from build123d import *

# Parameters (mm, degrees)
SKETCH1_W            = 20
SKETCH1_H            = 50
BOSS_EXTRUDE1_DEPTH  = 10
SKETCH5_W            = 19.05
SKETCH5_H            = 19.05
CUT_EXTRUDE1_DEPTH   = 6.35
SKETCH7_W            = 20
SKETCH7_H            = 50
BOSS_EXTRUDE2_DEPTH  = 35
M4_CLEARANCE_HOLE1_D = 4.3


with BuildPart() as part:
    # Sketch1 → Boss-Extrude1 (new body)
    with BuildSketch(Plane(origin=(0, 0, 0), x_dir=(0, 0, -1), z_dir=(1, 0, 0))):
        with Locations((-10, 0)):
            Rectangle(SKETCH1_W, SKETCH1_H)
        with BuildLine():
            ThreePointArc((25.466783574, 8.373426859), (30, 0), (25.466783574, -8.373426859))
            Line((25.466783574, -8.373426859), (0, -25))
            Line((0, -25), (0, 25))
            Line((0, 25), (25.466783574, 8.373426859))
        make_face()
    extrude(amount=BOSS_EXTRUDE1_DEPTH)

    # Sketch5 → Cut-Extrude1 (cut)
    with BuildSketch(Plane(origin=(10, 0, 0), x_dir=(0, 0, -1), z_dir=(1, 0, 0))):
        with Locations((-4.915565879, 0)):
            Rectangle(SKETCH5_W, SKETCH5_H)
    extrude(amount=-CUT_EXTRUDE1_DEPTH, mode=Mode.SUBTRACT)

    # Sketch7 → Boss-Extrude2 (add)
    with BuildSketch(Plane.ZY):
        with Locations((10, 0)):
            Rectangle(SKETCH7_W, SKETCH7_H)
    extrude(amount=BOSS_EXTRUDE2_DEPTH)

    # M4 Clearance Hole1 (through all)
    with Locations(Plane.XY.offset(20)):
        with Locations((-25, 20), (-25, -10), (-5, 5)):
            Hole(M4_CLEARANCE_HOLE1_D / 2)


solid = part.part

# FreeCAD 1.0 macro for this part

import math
import FreeCAD as App
import Part
import Sketcher
from FreeCAD import Vector
Q = App.Units.Quantity

doc = App.newDocument("Part")
params = doc.addObject("Spreadsheet::Sheet", "Params")
for row, (alias, value) in enumerate([
    ("sketch1_radius", "10 mm"),
    ("sketch1_width", "50 mm"),
    ("sketch1_height", "20 mm"),
    ("pad1_length", "10 mm"),
    ("sketch2_width", "19.05 mm"),
    ("pocket1_length", "6.35 mm"),
    ("sketch3_width", "50 mm"),
    ("sketch3_height", "20 mm"),
    ("pad2_length", "35 mm"),
    ("sketch4_diameter", "4.3 mm"),
    ("hole_diameter", "4.3 mm"),
], start=1):
    params.set(f"A{row}", alias)
    params.set(f"B{row}", "=" + value)
    params.setAlias(f"B{row}", alias)

body = doc.addObject("PartDesign::Body", "Body")

sketch1 = body.newObject("Sketcher::SketchObject", "Sketch")
sketch1.AttachmentSupport = (doc.getObject("YZ_Plane"), [""])
sketch1.MapMode = "FlatFace"
sketch1.addGeometry([
    Part.LineSegment(Vector(25, 20, 0), Vector(-25, 20, 0)),
    Part.LineSegment(Vector(-25, 20, 0), Vector(-25, 0, 0)),
    Part.LineSegment(Vector(-25, 0, 0), Vector(-8, -25, 0)),
    Part.ArcOfCircle(Part.Circle(Vector(0, -20, 0), Vector(0, 0, 1), 10), math.radians(-147), math.radians(-33)),
    Part.LineSegment(Vector(8, -25, 0), Vector(25, 0, 0)),
    Part.LineSegment(Vector(25, 0, 0), Vector(25, 20, 0)),
], False)
sketch1.addConstraint([
    Sketcher.Constraint("Coincident", 0, 2, 1, 1),
    Sketcher.Constraint("Coincident", 1, 2, 2, 1),
    Sketcher.Constraint("Tangent", 2, 2, 3, 1),
    Sketcher.Constraint("Tangent", 3, 2, 4, 1),
    Sketcher.Constraint("Coincident", 4, 2, 5, 1),
    Sketcher.Constraint("Coincident", 5, 2, 0, 1),
    Sketcher.Constraint("Horizontal", 0),
    Sketcher.Constraint("Vertical", 1),
    Sketcher.Constraint("Vertical", 5),
    Sketcher.Constraint("Symmetric", 1, 2, 4, 2, -1, 1),
    Sketcher.Constraint("Symmetric", 2, 2, 3, 2, -2),
    Sketcher.Constraint("Radius", 3, Q("10 mm")),
    Sketcher.Constraint("DistanceX", 0, 2, 0, 1, Q("50 mm")),
    Sketcher.Constraint("DistanceY", 1, 2, 1, 1, Q("20 mm")),
    Sketcher.Constraint("DistanceY", 3, 3, -1, 1, Q("20 mm")),
])
sketch1.setExpression("Constraints[11]", "Params.sketch1_radius")
sketch1.setExpression("Constraints[12]", "Params.sketch1_width")
sketch1.setExpression("Constraints[13]", "Params.sketch1_height")
pad1 = body.newObject("PartDesign::Pad", "Pad")
pad1.Profile = sketch1
pad1.setExpression("Length", "Params.pad1_length")

sketch2 = body.newObject("Sketcher::SketchObject", "Sketch001")
sketch2.AttachmentSupport = (doc.getObject("YZ_Plane"), [""])
sketch2.MapMode = "FlatFace"
sketch2.AttachmentOffset = App.Placement(Vector(0, 0, 10), App.Rotation())
sketch2.addGeometry([
    Part.LineSegment(Vector(10, 14, 0), Vector(-10, 14, 0)),
    Part.LineSegment(Vector(-10, 14, 0), Vector(-10, -5, 0)),
    Part.LineSegment(Vector(-10, -5, 0), Vector(10, -5, 0)),
    Part.LineSegment(Vector(10, -5, 0), Vector(10, 14, 0)),
], False)
sketch2.addConstraint([
    Sketcher.Constraint("Coincident", 0, 2, 1, 1),
    Sketcher.Constraint("Coincident", 1, 2, 2, 1),
    Sketcher.Constraint("Coincident", 2, 2, 3, 1),
    Sketcher.Constraint("Coincident", 3, 2, 0, 1),
    Sketcher.Constraint("Horizontal", 0),
    Sketcher.Constraint("Vertical", 1),
    Sketcher.Constraint("Horizontal", 2),
    Sketcher.Constraint("Vertical", 3),
    Sketcher.Constraint("Equal", 2, 1),
    Sketcher.Constraint("DistanceX", 0, 2, 0, 1, Q("19.05 mm")),
    Sketcher.Constraint("DistanceX", 0, 2, -1, 1, Q("9.525 mm")),
    Sketcher.Constraint("DistanceY", -1, 1, 0, 2, Q("14.440566 mm")),
])
sketch2.setExpression("Constraints[9]", "Params.sketch2_width")
pocket1 = body.newObject("PartDesign::Pocket", "Pocket")
pocket1.Profile = sketch2
pocket1.setExpression("Length", "Params.pocket1_length")

sketch3 = body.newObject("Sketcher::SketchObject", "Sketch002")
sketch3.AttachmentSupport = (doc.getObject("YZ_Plane"), [""])
sketch3.MapMode = "FlatFace"
sketch3.addGeometry([
    Part.LineSegment(Vector(25, 0, 0), Vector(-25, 0, 0)),
    Part.LineSegment(Vector(-25, 0, 0), Vector(-25, 20, 0)),
    Part.LineSegment(Vector(-25, 20, 0), Vector(25, 20, 0)),
    Part.LineSegment(Vector(25, 20, 0), Vector(25, 0, 0)),
], False)
sketch3.addConstraint([
    Sketcher.Constraint("Coincident", 0, 2, 1, 1),
    Sketcher.Constraint("Coincident", 1, 2, 2, 1),
    Sketcher.Constraint("Coincident", 2, 2, 3, 1),
    Sketcher.Constraint("Coincident", 3, 2, 0, 1),
    Sketcher.Constraint("Horizontal", 0),
    Sketcher.Constraint("Vertical", 1),
    Sketcher.Constraint("Horizontal", 2),
    Sketcher.Constraint("Vertical", 3),
    Sketcher.Constraint("Symmetric", 0, 2, 3, 2, -1, 1),
    Sketcher.Constraint("DistanceX", 0, 2, 0, 1, Q("50 mm")),
    Sketcher.Constraint("DistanceY", 1, 1, 1, 2, Q("20 mm")),
])
sketch3.setExpression("Constraints[9]", "Params.sketch3_width")
sketch3.setExpression("Constraints[10]", "Params.sketch3_height")
pad2 = body.newObject("PartDesign::Pad", "Pad001")
pad2.Profile = sketch3
pad2.setExpression("Length", "Params.pad2_length")
pad2.Reversed = True

sketch4 = body.newObject("Sketcher::SketchObject", "Sketch003")
sketch4.AttachmentSupport = (doc.getObject("XY_Plane"), [""])
sketch4.MapMode = "FlatFace"
sketch4.AttachmentOffset = App.Placement(Vector(0, 0, 20), App.Rotation())
sketch4.addGeometry([
    Part.Circle(Vector(-25, 20, 0), Vector(0, 0, 1), 2.1),
    Part.Circle(Vector(-25, -10, 0), Vector(0, 0, 1), 2.1),
    Part.Circle(Vector(-5, 5, 0), Vector(0, 0, 1), 2.1),
], False)
sketch4.addConstraint([
    Sketcher.Constraint("Equal", 0, 1),
    Sketcher.Constraint("Equal", 1, 2),
    Sketcher.Constraint("Vertical", 0, 3, 1, 3),
    Sketcher.Constraint("Diameter", 0, Q("4.3 mm")),
    Sketcher.Constraint("DistanceX", 0, 3, -1, 1, Q("25 mm")),
    Sketcher.Constraint("DistanceY", -1, 1, 0, 3, Q("20 mm")),
    Sketcher.Constraint("DistanceY", 1, 3, -1, 1, Q("10 mm")),
    Sketcher.Constraint("DistanceX", 2, 3, -1, 1, Q("5 mm")),
    Sketcher.Constraint("DistanceY", -1, 1, 2, 3, Q("5 mm")),
])
sketch4.setExpression("Constraints[3]", "Params.sketch4_diameter")
doc.recompute()
hole = body.newObject("PartDesign::Hole", "Hole")
hole.Profile = sketch4
hole.ThreadType = "None"
hole.setExpression("Diameter", "Params.hole_diameter")
hole.DepthType = "ThroughAll"

doc.recompute()
